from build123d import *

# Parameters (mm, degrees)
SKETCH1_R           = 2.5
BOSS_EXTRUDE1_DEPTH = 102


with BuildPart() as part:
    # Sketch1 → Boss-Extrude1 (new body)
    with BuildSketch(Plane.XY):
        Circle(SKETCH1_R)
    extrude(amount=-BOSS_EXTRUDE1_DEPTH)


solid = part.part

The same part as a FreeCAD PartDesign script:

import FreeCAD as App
import Part
import Sketcher

V = App.Vector

doc = App.newDocument("Part")
body = doc.addObject("PartDesign::Body", "Body")

# Sketch on XY plane
sketch1 = doc.addObject("Sketcher::SketchObject", "Sketch")
body.addObject(sketch1)
sketch1.AttachmentSupport = (doc.XY_Plane, [""])
sketch1.MapMode = "FlatFace"
sketch1.addGeometry(Part.Circle(V(0, 0, 0), V(0, 0, 1), 2.5), False)
sketch1.addConstraint([
    Sketcher.Constraint("Coincident", 0, 3, -1, 1),
    Sketcher.Constraint("Diameter", 0, 5.0),
])
pad1 = doc.addObject("PartDesign::Pad", "Pad")
body.addObject(pad1)
pad1.Profile = sketch1
pad1.Length = 102
pad1.Reversed = True

doc.recompute()
